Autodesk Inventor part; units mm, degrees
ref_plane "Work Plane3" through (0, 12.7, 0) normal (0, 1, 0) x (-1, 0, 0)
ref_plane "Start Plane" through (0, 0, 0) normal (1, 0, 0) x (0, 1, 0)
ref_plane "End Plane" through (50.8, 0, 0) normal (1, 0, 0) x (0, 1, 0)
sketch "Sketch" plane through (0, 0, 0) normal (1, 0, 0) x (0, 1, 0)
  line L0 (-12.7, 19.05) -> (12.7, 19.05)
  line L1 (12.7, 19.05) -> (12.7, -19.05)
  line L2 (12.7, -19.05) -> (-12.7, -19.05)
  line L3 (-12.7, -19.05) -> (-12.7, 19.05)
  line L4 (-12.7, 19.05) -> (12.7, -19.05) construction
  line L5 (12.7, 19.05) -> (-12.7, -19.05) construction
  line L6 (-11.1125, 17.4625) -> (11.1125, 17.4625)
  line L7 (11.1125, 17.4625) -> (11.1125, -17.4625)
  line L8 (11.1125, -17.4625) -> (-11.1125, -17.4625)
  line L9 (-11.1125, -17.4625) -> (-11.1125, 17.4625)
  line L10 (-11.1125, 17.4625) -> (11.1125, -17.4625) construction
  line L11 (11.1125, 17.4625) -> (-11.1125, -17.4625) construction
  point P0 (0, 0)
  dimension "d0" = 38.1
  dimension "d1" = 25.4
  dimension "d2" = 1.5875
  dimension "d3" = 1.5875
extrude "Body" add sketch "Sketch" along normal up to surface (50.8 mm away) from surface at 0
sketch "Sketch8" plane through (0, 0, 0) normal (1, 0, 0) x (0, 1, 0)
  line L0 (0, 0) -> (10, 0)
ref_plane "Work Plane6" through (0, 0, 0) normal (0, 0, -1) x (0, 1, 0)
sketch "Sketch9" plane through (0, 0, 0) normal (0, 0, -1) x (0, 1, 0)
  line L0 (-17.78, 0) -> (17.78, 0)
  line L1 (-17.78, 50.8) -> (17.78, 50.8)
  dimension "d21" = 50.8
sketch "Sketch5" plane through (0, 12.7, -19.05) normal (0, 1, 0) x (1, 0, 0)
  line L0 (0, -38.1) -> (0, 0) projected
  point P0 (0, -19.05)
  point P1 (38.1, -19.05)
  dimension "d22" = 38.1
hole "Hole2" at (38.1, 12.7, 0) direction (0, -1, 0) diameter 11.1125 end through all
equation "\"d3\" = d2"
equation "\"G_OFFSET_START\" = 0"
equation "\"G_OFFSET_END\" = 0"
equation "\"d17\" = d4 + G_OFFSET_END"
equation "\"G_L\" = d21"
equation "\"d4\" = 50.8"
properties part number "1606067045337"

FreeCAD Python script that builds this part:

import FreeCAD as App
import Part
import Sketcher
from FreeCAD import Vector
Q = App.Units.Quantity

doc = App.newDocument("Part")
params = doc.addObject("Spreadsheet::Sheet", "Params")
for row, (alias, value) in enumerate([
    ("sketch1_width", "1 in"),
    ("sketch1_height", "1.5 in"),
    ("pad1_length", "2 in"),
    ("sketch2_diameter", "0.4375 in"),
    ("hole_diameter", "0.4375 in"),
], start=1):
    params.set(f"A{row}", alias)
    params.set(f"B{row}", "=" + value)
    params.setAlias(f"B{row}", alias)

body = doc.addObject("PartDesign::Body", "Body")

# Sketch on YZ plane
sketch1 = body.newObject("Sketcher::SketchObject", "Sketch")
sketch1.AttachmentSupport = (doc.getObject("YZ_Plane"), [""])
sketch1.MapMode = "FlatFace"
sketch1.addGeometry(Part.LineSegment(Vector(12.7, 19.05, 0), Vector(-12.7, 19.05, 0)), False)
sketch1.addGeometry(Part.LineSegment(Vector(-12.7, 19.05, 0), Vector(-12.7, -19.05, 0)), False)
sketch1.addGeometry(Part.LineSegment(Vector(-12.7, -19.05, 0), Vector(12.7, -19.05, 0)), False)
sketch1.addGeometry(Part.LineSegment(Vector(12.7, -19.05, 0), Vector(12.7, 19.05, 0)), False)
sketch1.addGeometry(Part.LineSegment(Vector(-11.1125, -17.4625, 0), Vector(-11.1125, 17.4625, 0)), False)
sketch1.addGeometry(Part.LineSegment(Vector(-11.1125, 17.4625, 0), Vector(11.1125, 17.4625, 0)), False)
sketch1.addGeometry(Part.LineSegment(Vector(11.1125, 17.4625, 0), Vector(11.1125, -17.4625, 0)), False)
sketch1.addGeometry(Part.LineSegment(Vector(11.1125, -17.4625, 0), Vector(-11.1125, -17.4625, 0)), False)
sketch1.addConstraint(Sketcher.Constraint("Coincident", 0, 2, 1, 1))
sketch1.addConstraint(Sketcher.Constraint("Coincident", 1, 2, 2, 1))
sketch1.addConstraint(Sketcher.Constraint("Coincident", 2, 2, 3, 1))
sketch1.addConstraint(Sketcher.Constraint("Coincident", 3, 2, 0, 1))
sketch1.addConstraint(Sketcher.Constraint("Coincident", 4, 2, 5, 1))
sketch1.addConstraint(Sketcher.Constraint("Coincident", 5, 2, 6, 1))
sketch1.addConstraint(Sketcher.Constraint("Coincident", 6, 2, 7, 1))
sketch1.addConstraint(Sketcher.Constraint("Coincident", 7, 2, 4, 1))
sketch1.addConstraint(Sketcher.Constraint("Horizontal", 0))
sketch1.addConstraint(Sketcher.Constraint("Vertical", 1))
sketch1.addConstraint(Sketcher.Constraint("Horizontal", 2))
sketch1.addConstraint(Sketcher.Constraint("Vertical", 3))
sketch1.addConstraint(Sketcher.Constraint("Vertical", 4))
sketch1.addConstraint(Sketcher.Constraint("Horizontal", 5))
sketch1.addConstraint(Sketcher.Constraint("Vertical", 6))
sketch1.addConstraint(Sketcher.Constraint("Horizontal", 7))
sketch1.addConstraint(Sketcher.Constraint("Symmetric", 0, 2, 2, 2, -1, 1))
sketch1.addConstraint(Sketcher.Constraint("Symmetric", 4, 2, 6, 2, -1, 1))
sketch1.addConstraint(Sketcher.Constraint("DistanceX", 0, 2, 0, 1, Q("1 in")))
sketch1.addConstraint(Sketcher.Constraint("DistanceY", 1, 2, 1, 1, Q("1.5 in")))
sketch1.addConstraint(Sketcher.Constraint("DistanceX", 0, 2, 4, 2, Q("0.0625 in")))
sketch1.addConstraint(Sketcher.Constraint("DistanceY", 4, 2, 0, 2, Q("0.0625 in")))
sketch1.setExpression("Constraints[18]", "Params.sketch1_width")
sketch1.setExpression("Constraints[19]", "Params.sketch1_height")
pad1 = body.newObject("PartDesign::Pad", "Pad")
pad1.Profile = sketch1
pad1.setExpression("Length", "Params.pad1_length")

# Sketch on XZ plane
sketch2 = body.newObject("Sketcher::SketchObject", "Sketch001")
sketch2.AttachmentSupport = (doc.getObject("XZ_Plane"), [""])
sketch2.MapMode = "FlatFace"
sketch2.AttachmentOffset = App.Placement(Vector(0, 0, -0.5 * 25.4), App.Rotation())
sketch2.addGeometry(Part.Circle(Vector(38.1, 0, 0), Vector(0, 0, 1), 5.55625), False)
sketch2.addConstraint(Sketcher.Constraint("PointOnObject", 0, 3, -1))
sketch2.addConstraint(Sketcher.Constraint("Diameter", 0, Q("0.4375 in")))
sketch2.addConstraint(Sketcher.Constraint("DistanceX", -1, 1, 0, 3, Q("1.5 in")))
sketch2.setExpression("Constraints[1]", "Params.sketch2_diameter")
doc.recompute()
hole = body.newObject("PartDesign::Hole", "Hole")
hole.Profile = sketch2
hole.ThreadType = "None"
hole.setExpression("Diameter", "Params.hole_diameter")
hole.DepthType = "ThroughAll"
hole.Reversed = True

doc.recompute()
